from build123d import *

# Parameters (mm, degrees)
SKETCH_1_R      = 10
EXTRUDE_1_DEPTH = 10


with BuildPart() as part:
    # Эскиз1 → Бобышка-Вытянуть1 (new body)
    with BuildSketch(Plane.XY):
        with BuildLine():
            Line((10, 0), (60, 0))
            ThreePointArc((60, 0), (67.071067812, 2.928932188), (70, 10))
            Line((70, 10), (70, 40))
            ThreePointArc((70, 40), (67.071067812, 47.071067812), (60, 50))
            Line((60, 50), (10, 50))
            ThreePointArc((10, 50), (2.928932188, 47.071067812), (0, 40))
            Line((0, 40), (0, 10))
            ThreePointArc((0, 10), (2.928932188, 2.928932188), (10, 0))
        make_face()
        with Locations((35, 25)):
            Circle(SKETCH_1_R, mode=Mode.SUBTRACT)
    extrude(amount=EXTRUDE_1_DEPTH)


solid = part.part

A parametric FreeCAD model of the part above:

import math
import FreeCAD as App
import Part
import Sketcher
Q = App.Units.Quantity

doc = App.newDocument("Part")
body = doc.addObject("PartDesign::Body", "Body")

# Sketch on XY plane
sketch1 = body.newObject("Sketcher::SketchObject", "Sketch")
sketch1.AttachmentSupport = (doc.getObject("XY_Plane"), [""])
sketch1.MapMode = "FlatFace"
sketch1.addGeometry(Part.LineSegment(App.Vector(10, 0, 0), App.Vector(60, 0, 0)), False)
sketch1.addGeometry(Part.ArcOfCircle(Part.Circle(App.Vector(60, 10, 0), App.Vector(0, 0, 1), 10), math.radians(-90), math.radians(0)), False)
sketch1.addGeometry(Part.LineSegment(App.Vector(70, 10, 0), App.Vector(70, 40, 0)), False)
sketch1.addGeometry(Part.ArcOfCircle(Part.Circle(App.Vector(60, 40, 0), App.Vector(0, 0, 1), 10), math.radians(0), math.radians(90)), False)
sketch1.addGeometry(Part.LineSegment(App.Vector(60, 50, 0), App.Vector(10, 50, 0)), False)
sketch1.addGeometry(Part.ArcOfCircle(Part.Circle(App.Vector(10, 40, 0), App.Vector(0, 0, 1), 10), math.radians(90), math.radians(180)), False)
sketch1.addGeometry(Part.LineSegment(App.Vector(0, 40, 0), App.Vector(0, 10, 0)), False)
sketch1.addGeometry(Part.ArcOfCircle(Part.Circle(App.Vector(10, 10, 0), App.Vector(0, 0, 1), 10), math.radians(180), math.radians(270)), False)
sketch1.addGeometry(Part.Circle(App.Vector(35, 25, 0), App.Vector(0, 0, 1), 10), False)
sketch1.addConstraint(Sketcher.Constraint("Tangent", 0, 2, 1, 1))
sketch1.addConstraint(Sketcher.Constraint("Tangent", 1, 2, 2, 1))
sketch1.addConstraint(Sketcher.Constraint("Tangent", 2, 2, 3, 1))
sketch1.addConstraint(Sketcher.Constraint("Tangent", 3, 2, 4, 1))
sketch1.addConstraint(Sketcher.Constraint("Tangent", 4, 2, 5, 1))
sketch1.addConstraint(Sketcher.Constraint("Tangent", 5, 2, 6, 1))
sketch1.addConstraint(Sketcher.Constraint("Tangent", 6, 2, 7, 1))
sketch1.addConstraint(Sketcher.Constraint("Tangent", 7, 2, 0, 1))
sketch1.addConstraint(Sketcher.Constraint("Horizontal", 0))
sketch1.addConstraint(Sketcher.Constraint("Vertical", 2))
sketch1.addConstraint(Sketcher.Constraint("Horizontal", 4))
sketch1.addConstraint(Sketcher.Constraint("Vertical", 6))
sketch1.addConstraint(Sketcher.Constraint("Equal", 1, 3))
sketch1.addConstraint(Sketcher.Constraint("Equal", 3, 5))
sketch1.addConstraint(Sketcher.Constraint("Equal", 5, 7))
sketch1.addConstraint(Sketcher.Constraint("Equal", 7, 8))
sketch1.addConstraint(Sketcher.Constraint("PointOnObject", 0, 2, -1))
sketch1.addConstraint(Sketcher.Constraint("PointOnObject", 5, 2, -2))
sketch1.addConstraint(Sketcher.Constraint("Diameter", 8, Q("20 mm")))
sketch1.addConstraint(Sketcher.Constraint("DistanceX", 0, 1, 0, 2, Q("50 mm")))
sketch1.addConstraint(Sketcher.Constraint("DistanceY", 2, 1, 2, 2, Q("30 mm")))
sketch1.addConstraint(Sketcher.Constraint("DistanceX", -1, 1, 8, 3, Q("35 mm")))
sketch1.addConstraint(Sketcher.Constraint("DistanceY", -1, 1, 8, 3, Q("25 mm")))
pad1 = body.newObject("PartDesign::Pad", "Pad")
pad1.Profile = sketch1
pad1.Length = 10

doc.recompute()
